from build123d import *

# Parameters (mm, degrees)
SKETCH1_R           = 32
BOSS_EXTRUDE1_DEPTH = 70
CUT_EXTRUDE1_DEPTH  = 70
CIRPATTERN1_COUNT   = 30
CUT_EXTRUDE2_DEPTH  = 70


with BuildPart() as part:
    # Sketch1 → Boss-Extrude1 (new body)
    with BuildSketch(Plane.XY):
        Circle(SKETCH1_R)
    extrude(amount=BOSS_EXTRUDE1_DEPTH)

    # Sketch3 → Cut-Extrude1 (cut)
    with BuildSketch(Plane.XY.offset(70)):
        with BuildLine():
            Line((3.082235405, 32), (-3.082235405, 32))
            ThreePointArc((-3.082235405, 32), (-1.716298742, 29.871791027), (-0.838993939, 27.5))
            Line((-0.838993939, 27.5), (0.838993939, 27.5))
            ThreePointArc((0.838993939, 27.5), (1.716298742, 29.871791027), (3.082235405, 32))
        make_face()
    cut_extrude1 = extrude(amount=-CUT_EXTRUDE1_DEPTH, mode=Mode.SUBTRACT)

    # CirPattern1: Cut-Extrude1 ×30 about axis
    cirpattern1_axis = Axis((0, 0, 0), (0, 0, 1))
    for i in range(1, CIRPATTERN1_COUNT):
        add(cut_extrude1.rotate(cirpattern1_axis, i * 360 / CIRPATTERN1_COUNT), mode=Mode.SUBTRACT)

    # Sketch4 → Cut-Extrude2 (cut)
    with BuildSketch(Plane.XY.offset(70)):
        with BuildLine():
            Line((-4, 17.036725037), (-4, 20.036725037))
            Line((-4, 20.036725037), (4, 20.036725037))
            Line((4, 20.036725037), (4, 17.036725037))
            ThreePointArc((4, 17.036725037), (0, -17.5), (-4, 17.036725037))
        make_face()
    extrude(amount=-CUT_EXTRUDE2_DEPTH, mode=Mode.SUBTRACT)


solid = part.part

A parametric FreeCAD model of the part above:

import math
import FreeCAD as App
import Part
import Sketcher
Q = App.Units.Quantity

doc = App.newDocument("Part")
body = doc.addObject("PartDesign::Body", "Body")

# Sketch on XY plane
sketch1 = doc.addObject("Sketcher::SketchObject", "Sketch")
body.addObject(sketch1)
sketch1.AttachmentSupport = (doc.XY_Plane, [""])
sketch1.MapMode = "FlatFace"
sketch1.addGeometry(Part.Circle(App.Vector(0, 0, 0), App.Vector(0, 0, 1), 32), False)
sketch1.addConstraint(Sketcher.Constraint("Coincident", 0, 3, -1, 1))
sketch1.addConstraint(Sketcher.Constraint("Diameter", 0, Q("64 mm")))
pad1 = doc.addObject("PartDesign::Pad", "Pad")
body.addObject(pad1)
pad1.Profile = sketch1
pad1.Length = 70

# Sketch on XY plane
sketch2 = doc.addObject("Sketcher::SketchObject", "Sketch001")
body.addObject(sketch2)
sketch2.AttachmentSupport = (doc.XY_Plane, [""])
sketch2.MapMode = "FlatFace"
sketch2.AttachmentOffset = App.Placement(App.Vector(0, 0, 70), App.Rotation())
sketch2.addGeometry(Part.LineSegment(App.Vector(3.1, 32, 0), App.Vector(-3.1, 32, 0)), False)
sketch2.addGeometry(Part.ArcOfCircle(Part.Circle(App.Vector(-12.2, 24.6, 0), App.Vector(0, 0, 1), 11.7), math.radians(14), math.radians(39)), False)
sketch2.addGeometry(Part.LineSegment(App.Vector(-0.8, 27.5, 0), App.Vector(0.8, 27.5, 0)), False)
sketch2.addGeometry(Part.ArcOfCircle(Part.Circle(App.Vector(12.2, 24.6, 0), App.Vector(0, 0, 1), 11.7), math.radians(141), math.radians(166)), False)
sketch2.addConstraint(Sketcher.Constraint("Coincident", 0, 2, 1, 2))
sketch2.addConstraint(Sketcher.Constraint("Coincident", 1, 1, 2, 1))
sketch2.addConstraint(Sketcher.Constraint("Coincident", 2, 2, 3, 2))
sketch2.addConstraint(Sketcher.Constraint("Coincident", 3, 1, 0, 1))
sketch2.addConstraint(Sketcher.Constraint("Horizontal", 0))
sketch2.addConstraint(Sketcher.Constraint("Horizontal", 2))
sketch2.addConstraint(Sketcher.Constraint("Equal", 1, 3))
sketch2.addConstraint(Sketcher.Constraint("Symmetric", 1, 3, 3, 3, -2))
sketch2.addConstraint(Sketcher.Constraint("DistanceY", -1, 1, 0, 2, Q("32 mm")))
sketch2.addConstraint(Sketcher.Constraint("DistanceY", -1, 1, 1, 1, Q("27.5 mm")))
sketch2.addConstraint(Sketcher.Constraint("Radius", 1, Q("11.713003 mm")))
sketch2.addConstraint(Sketcher.Constraint("DistanceX", 0, 2, 0, 1, Q("6.164471 mm")))
sketch2.addConstraint(Sketcher.Constraint("DistanceX", 2, 1, 2, 2, Q("1.677988 mm")))
pocket1 = doc.addObject("PartDesign::Pocket", "Pocket")
body.addObject(pocket1)
pocket1.Profile = sketch2
pocket1.Length = 70
doc.recompute()

polarpattern = doc.addObject("PartDesign::PolarPattern", "PolarPattern")
body.addObject(polarpattern)
polarpattern.Originals = [pocket1]
polarpattern.Axis = (doc.Z_Axis, [""])
polarpattern.Angle = 360
polarpattern.Occurrences = 30
body.Tip = polarpattern

# Sketch on XY plane
sketch3 = doc.addObject("Sketcher::SketchObject", "Sketch002")
body.addObject(sketch3)
sketch3.AttachmentSupport = (doc.XY_Plane, [""])
sketch3.MapMode = "FlatFace"
sketch3.AttachmentOffset = App.Placement(App.Vector(0, 0, 70), App.Rotation())
sketch3.addGeometry(Part.LineSegment(App.Vector(-4, 20, 0), App.Vector(-4, 17, 0)), False)
sketch3.addGeometry(Part.ArcOfCircle(Part.Circle(App.Vector(0, 0, 0), App.Vector(0, 0, 1), 17.5), math.radians(103), math.radians(437)), False)
sketch3.addGeometry(Part.LineSegment(App.Vector(4, 17, 0), App.Vector(4, 20, 0)), False)
sketch3.addGeometry(Part.LineSegment(App.Vector(4, 20, 0), App.Vector(-4, 20, 0)), False)
sketch3.addConstraint(Sketcher.Constraint("Coincident", 0, 2, 1, 1))
sketch3.addConstraint(Sketcher.Constraint("Coincident", 1, 2, 2, 1))
sketch3.addConstraint(Sketcher.Constraint("Coincident", 2, 2, 3, 1))
sketch3.addConstraint(Sketcher.Constraint("Coincident", 3, 2, 0, 1))
sketch3.addConstraint(Sketcher.Constraint("Vertical", 0))
sketch3.addConstraint(Sketcher.Constraint("Vertical", 2))
sketch3.addConstraint(Sketcher.Constraint("Horizontal", 3))
sketch3.addConstraint(Sketcher.Constraint("Coincident", 1, 3, -1, 1))
sketch3.addConstraint(Sketcher.Constraint("Horizontal", 0, 2, 1, 2))
sketch3.addConstraint(Sketcher.Constraint("Radius", 1, Q("17.5 mm")))
sketch3.addConstraint(Sketcher.Constraint("DistanceX", 3, 2, 3, 1, Q("8 mm")))
sketch3.addConstraint(Sketcher.Constraint("DistanceY", 0, 2, 0, 1, Q("3 mm")))
pocket2 = doc.addObject("PartDesign::Pocket", "Pocket001")
body.addObject(pocket2)
pocket2.Profile = sketch3
pocket2.Length = 70

doc.recompute()
